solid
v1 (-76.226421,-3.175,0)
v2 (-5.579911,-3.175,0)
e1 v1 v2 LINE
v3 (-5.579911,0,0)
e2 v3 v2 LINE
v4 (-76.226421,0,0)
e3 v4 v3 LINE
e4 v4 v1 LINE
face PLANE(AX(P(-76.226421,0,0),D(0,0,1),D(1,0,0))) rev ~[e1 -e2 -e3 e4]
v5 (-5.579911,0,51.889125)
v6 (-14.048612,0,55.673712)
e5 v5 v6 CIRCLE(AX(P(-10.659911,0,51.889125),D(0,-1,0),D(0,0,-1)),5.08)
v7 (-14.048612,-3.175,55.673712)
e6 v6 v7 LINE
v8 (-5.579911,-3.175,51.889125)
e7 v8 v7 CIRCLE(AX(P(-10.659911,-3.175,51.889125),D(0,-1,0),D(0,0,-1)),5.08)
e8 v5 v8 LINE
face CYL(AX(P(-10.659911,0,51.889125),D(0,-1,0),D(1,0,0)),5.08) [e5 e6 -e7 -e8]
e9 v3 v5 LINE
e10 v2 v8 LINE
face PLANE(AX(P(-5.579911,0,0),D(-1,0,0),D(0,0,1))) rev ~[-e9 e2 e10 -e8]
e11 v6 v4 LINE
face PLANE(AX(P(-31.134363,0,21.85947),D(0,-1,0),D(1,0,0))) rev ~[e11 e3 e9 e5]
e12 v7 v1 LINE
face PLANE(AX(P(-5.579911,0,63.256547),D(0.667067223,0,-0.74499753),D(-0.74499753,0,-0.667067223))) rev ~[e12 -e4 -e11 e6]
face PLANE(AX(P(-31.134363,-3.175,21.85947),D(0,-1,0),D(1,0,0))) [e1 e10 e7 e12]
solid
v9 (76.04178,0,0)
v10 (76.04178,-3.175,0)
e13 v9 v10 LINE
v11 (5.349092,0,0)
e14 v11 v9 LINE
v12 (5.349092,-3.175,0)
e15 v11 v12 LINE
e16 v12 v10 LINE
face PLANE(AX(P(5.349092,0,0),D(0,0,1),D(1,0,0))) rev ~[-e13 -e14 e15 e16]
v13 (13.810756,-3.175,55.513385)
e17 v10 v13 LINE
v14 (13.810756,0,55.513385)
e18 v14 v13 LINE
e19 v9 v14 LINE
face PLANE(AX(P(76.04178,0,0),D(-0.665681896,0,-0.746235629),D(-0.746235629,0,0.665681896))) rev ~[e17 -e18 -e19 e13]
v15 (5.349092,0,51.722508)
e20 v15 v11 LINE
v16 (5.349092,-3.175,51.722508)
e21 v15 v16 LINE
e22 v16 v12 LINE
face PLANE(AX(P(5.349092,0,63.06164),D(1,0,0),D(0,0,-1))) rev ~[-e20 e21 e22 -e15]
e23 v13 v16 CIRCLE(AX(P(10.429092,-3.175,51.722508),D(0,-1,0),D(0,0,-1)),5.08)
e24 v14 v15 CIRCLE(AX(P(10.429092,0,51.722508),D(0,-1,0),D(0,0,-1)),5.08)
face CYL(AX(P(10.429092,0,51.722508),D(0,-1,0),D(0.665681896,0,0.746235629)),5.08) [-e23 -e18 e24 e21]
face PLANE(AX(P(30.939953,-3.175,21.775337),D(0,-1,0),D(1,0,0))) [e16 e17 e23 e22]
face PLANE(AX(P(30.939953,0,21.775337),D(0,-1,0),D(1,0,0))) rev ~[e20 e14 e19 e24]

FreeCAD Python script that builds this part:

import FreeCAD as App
import Part
import Sketcher
Q = App.Units.Quantity


def edges_at(feature, points):
    """Names of the edges that pass closest to the given points."""
    edges = feature.Shape.Edges
    near = lambda p: min(range(len(edges)), key=lambda i: edges[i].distToShape(Part.Vertex(*p))[0])
    return sorted({f"Edge{near(p) + 1}" for p in points})

doc = App.newDocument("Part")
params = doc.addObject("Spreadsheet::Sheet", "Params")
for row, (alias, value) in enumerate([
    ("pad1_length", "0.125 in"),
    ("fillet_radius", "0.2 in"),
], start=1):
    params.set(f"A{row}", alias)
    params.set(f"B{row}", "=" + value)
    params.setAlias(f"B{row}", alias)

body = doc.addObject("PartDesign::Body", "Body")
body.AllowCompound = True

sketch1 = body.newObject("Sketcher::SketchObject", "Sketch")
sketch1.AttachmentSupport = (doc.getObject("XZ_Plane"), [""])
sketch1.MapMode = "FlatFace"
sketch1.addGeometry([
    Part.LineSegment(App.Vector(-6, 0, 0), App.Vector(-6, 63, 0)),
    Part.LineSegment(App.Vector(-6, 63, 0), App.Vector(-76, 0, 0)),
    Part.LineSegment(App.Vector(-76, 0, 0), App.Vector(-6, 0, 0)),
    Part.LineSegment(App.Vector(76, 0, 0), App.Vector(5, 63, 0)),
    Part.LineSegment(App.Vector(5, 63, 0), App.Vector(5, 0, 0)),
    Part.LineSegment(App.Vector(5, 0, 0), App.Vector(76, 0, 0)),
], False)
sketch1.addConstraint([
    Sketcher.Constraint("Coincident", 0, 2, 1, 1),
    Sketcher.Constraint("Coincident", 1, 2, 2, 1),
    Sketcher.Constraint("Coincident", 2, 2, 0, 1),
    Sketcher.Constraint("Coincident", 3, 2, 4, 1),
    Sketcher.Constraint("Coincident", 4, 2, 5, 1),
    Sketcher.Constraint("Coincident", 5, 2, 3, 1),
    Sketcher.Constraint("Vertical", 0),
    Sketcher.Constraint("Horizontal", 2),
    Sketcher.Constraint("Vertical", 4),
    Sketcher.Constraint("Horizontal", 5),
    Sketcher.Constraint("PointOnObject", 1, 2, -1),
    Sketcher.Constraint("PointOnObject", 4, 2, -1),
    Sketcher.Constraint("DistanceX", 2, 1, 2, 2, Q("70.64651 mm")),
    Sketcher.Constraint("DistanceX", 5, 1, 5, 2, Q("70.692688 mm")),
    Sketcher.Constraint("DistanceY", 4, 2, 4, 1, Q("63.06164 mm")),
    Sketcher.Constraint("DistanceX", 1, 2, 5, 2, Q("152.268201 mm")),
    Sketcher.Constraint("DistanceY", 0, 1, 0, 2, Q("63.256547 mm")),
    Sketcher.Constraint("DistanceX", 0, 2, -1, 1, Q("5.579911 mm")),
])
pad1 = body.newObject("PartDesign::Pad", "Pad")
pad1.Profile = sketch1
pad1.setExpression("Length", "Params.pad1_length")
doc.recompute()

fillet = body.newObject("PartDesign::Fillet", "Fillet")
fillet.Base = (pad1, edges_at(pad1, [(5.349, -1.587, 63.062), (-5.58, -1.587, 63.257)]))
fillet.setExpression("Radius", "Params.fillet_radius")

doc.recompute()
